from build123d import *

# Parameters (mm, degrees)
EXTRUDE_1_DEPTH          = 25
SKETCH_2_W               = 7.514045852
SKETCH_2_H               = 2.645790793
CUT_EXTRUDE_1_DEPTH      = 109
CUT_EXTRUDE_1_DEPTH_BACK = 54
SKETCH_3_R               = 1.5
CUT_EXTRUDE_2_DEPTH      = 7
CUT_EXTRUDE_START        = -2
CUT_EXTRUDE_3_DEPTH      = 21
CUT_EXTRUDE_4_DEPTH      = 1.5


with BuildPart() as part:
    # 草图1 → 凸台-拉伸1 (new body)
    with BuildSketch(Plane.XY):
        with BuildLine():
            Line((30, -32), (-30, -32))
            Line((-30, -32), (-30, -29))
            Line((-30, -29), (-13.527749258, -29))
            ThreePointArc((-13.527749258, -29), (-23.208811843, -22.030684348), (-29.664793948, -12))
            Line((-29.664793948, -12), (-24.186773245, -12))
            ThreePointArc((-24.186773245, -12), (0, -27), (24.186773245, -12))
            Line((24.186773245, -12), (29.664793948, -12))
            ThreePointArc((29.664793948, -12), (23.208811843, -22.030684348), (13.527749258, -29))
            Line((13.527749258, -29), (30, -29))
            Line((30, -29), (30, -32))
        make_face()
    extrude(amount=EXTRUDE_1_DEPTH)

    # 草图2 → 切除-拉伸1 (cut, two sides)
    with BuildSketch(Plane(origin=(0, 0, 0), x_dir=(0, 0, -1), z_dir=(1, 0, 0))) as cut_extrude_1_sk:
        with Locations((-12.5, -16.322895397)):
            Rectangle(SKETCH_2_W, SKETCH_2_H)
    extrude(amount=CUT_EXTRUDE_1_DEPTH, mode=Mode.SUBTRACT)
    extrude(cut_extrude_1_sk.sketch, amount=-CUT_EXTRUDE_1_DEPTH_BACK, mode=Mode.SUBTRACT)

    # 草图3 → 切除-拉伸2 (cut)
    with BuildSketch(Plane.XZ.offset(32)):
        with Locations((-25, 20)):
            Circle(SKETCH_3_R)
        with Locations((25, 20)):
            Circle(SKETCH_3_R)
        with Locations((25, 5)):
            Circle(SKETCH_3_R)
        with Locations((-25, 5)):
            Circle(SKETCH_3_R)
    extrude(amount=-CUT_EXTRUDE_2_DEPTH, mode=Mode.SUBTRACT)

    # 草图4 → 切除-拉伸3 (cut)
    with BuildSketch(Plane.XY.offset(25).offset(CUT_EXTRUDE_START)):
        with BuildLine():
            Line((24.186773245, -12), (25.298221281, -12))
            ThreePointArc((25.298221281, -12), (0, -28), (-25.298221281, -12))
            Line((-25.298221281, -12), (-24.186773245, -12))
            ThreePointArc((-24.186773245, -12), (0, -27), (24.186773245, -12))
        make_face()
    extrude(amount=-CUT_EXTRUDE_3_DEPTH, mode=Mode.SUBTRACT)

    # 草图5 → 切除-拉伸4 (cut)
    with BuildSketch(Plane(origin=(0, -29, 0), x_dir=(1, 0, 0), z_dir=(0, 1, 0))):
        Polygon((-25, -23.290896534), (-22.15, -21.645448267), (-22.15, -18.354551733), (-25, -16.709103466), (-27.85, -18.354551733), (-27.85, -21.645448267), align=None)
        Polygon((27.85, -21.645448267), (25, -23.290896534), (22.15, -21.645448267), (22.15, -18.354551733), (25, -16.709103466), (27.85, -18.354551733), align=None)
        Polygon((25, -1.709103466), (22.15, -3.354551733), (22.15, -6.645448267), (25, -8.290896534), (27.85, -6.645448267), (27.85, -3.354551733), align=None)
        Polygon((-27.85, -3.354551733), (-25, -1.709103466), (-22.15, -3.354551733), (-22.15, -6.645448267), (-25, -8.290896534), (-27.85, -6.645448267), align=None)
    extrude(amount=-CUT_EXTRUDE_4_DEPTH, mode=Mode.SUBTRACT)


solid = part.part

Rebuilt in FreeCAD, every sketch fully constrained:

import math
import FreeCAD as App
import Part
import Sketcher
Q = App.Units.Quantity

doc = App.newDocument("Part")
body = doc.addObject("PartDesign::Body", "Body")

sketch1 = body.newObject("Sketcher::SketchObject", "Sketch")
sketch1.AttachmentSupport = (doc.getObject("XY_Plane"), [""])
sketch1.MapMode = "FlatFace"
sketch1.addGeometry([
    Part.LineSegment(App.Vector(-30, -32, 0), App.Vector(30, -32, 0)),
    Part.LineSegment(App.Vector(30, -32, 0), App.Vector(30, -29, 0)),
    Part.LineSegment(App.Vector(30, -29, 0), App.Vector(13.5, -29, 0)),
    Part.ArcOfCircle(Part.Circle(App.Vector(0, 0, 0), App.Vector(0, 0, 1), 32), math.radians(-65), math.radians(-22)),
    Part.LineSegment(App.Vector(29.7, -12, 0), App.Vector(24.2, -12, 0)),
    Part.ArcOfCircle(Part.Circle(App.Vector(0, 0, 0), App.Vector(0, 0, 1), 27), math.radians(-154), math.radians(-26)),
    Part.LineSegment(App.Vector(-24.2, -12, 0), App.Vector(-29.7, -12, 0)),
    Part.ArcOfCircle(Part.Circle(App.Vector(0, 0, 0), App.Vector(0, 0, 1), 32), math.radians(-158), math.radians(-115)),
    Part.LineSegment(App.Vector(-13.5, -29, 0), App.Vector(-30, -29, 0)),
    Part.LineSegment(App.Vector(-30, -29, 0), App.Vector(-30, -32, 0)),
], False)
sketch1.addConstraint([
    Sketcher.Constraint("Coincident", 0, 2, 1, 1),
    Sketcher.Constraint("Coincident", 1, 2, 2, 1),
    Sketcher.Constraint("Coincident", 2, 2, 3, 1),
    Sketcher.Constraint("Coincident", 3, 2, 4, 1),
    Sketcher.Constraint("Coincident", 4, 2, 5, 2),
    Sketcher.Constraint("Coincident", 5, 1, 6, 1),
    Sketcher.Constraint("Coincident", 6, 2, 7, 1),
    Sketcher.Constraint("Coincident", 7, 2, 8, 1),
    Sketcher.Constraint("Coincident", 8, 2, 9, 1),
    Sketcher.Constraint("Coincident", 9, 2, 0, 1),
    Sketcher.Constraint("Horizontal", 0),
    Sketcher.Constraint("Vertical", 1),
    Sketcher.Constraint("Horizontal", 2),
    Sketcher.Constraint("Horizontal", 4),
    Sketcher.Constraint("Horizontal", 6),
    Sketcher.Constraint("Horizontal", 8),
    Sketcher.Constraint("Vertical", 9),
    Sketcher.Constraint("Coincident", 3, 3, -1, 1),
    Sketcher.Constraint("Coincident", 5, 3, -1, 1),
    Sketcher.Constraint("Coincident", 7, 3, -1, 1),
    Sketcher.Constraint("Equal", 3, 7),
    Sketcher.Constraint("Symmetric", 1, 2, 8, 2, -2),
    Sketcher.Constraint("Horizontal", 4, 2, 5, 1),
    Sketcher.Constraint("Radius", 3, Q("32 mm")),
    Sketcher.Constraint("Radius", 5, Q("27 mm")),
    Sketcher.Constraint("DistanceX", 0, 1, 0, 2, Q("60 mm")),
    Sketcher.Constraint("DistanceY", 1, 1, 1, 2, Q("3 mm")),
    Sketcher.Constraint("DistanceY", 0, 2, -1, 1, Q("32 mm")),
    Sketcher.Constraint("DistanceY", 3, 2, -1, 1, Q("12 mm")),
])
pad1 = body.newObject("PartDesign::Pad", "Pad")
pad1.Profile = sketch1
pad1.Length = 25

sketch2 = body.newObject("Sketcher::SketchObject", "Sketch001")
sketch2.AttachmentSupport = (doc.getObject("YZ_Plane"), [""])
sketch2.MapMode = "FlatFace"
sketch2.addGeometry([
    Part.LineSegment(App.Vector(-15, 16.3, 0), App.Vector(-17.6, 16.3, 0)),
    Part.LineSegment(App.Vector(-17.6, 16.3, 0), App.Vector(-17.6, 8.7, 0)),
    Part.LineSegment(App.Vector(-17.6, 8.7, 0), App.Vector(-15, 8.7, 0)),
    Part.LineSegment(App.Vector(-15, 8.7, 0), App.Vector(-15, 16.3, 0)),
], False)
sketch2.addConstraint([
    Sketcher.Constraint("Coincident", 0, 2, 1, 1),
    Sketcher.Constraint("Coincident", 1, 2, 2, 1),
    Sketcher.Constraint("Coincident", 2, 2, 3, 1),
    Sketcher.Constraint("Coincident", 3, 2, 0, 1),
    Sketcher.Constraint("Horizontal", 0),
    Sketcher.Constraint("Vertical", 1),
    Sketcher.Constraint("Horizontal", 2),
    Sketcher.Constraint("Vertical", 3),
    Sketcher.Constraint("DistanceX", 2, 2, -1, 1, Q("15 mm")),
    Sketcher.Constraint("DistanceX", 0, 2, 0, 1, Q("2.645791 mm")),
    Sketcher.Constraint("DistanceY", 1, 2, 1, 1, Q("7.514046 mm")),
    Sketcher.Constraint("DistanceY", -1, 1, 0, 2, Q("16.257023 mm")),
])
pocket1 = body.newObject("PartDesign::Pocket", "Pocket")
pocket1.Profile = sketch2
pocket1.Type = "ThroughAll"
pocket1.Midplane = True

sketch3 = body.newObject("Sketcher::SketchObject", "Sketch002")
sketch3.AttachmentSupport = (doc.getObject("XZ_Plane"), [""])
sketch3.MapMode = "FlatFace"
sketch3.AttachmentOffset = App.Placement(App.Vector(0, 0, 32), App.Rotation())
sketch3.addGeometry([
    Part.Circle(App.Vector(-25, 20, 0), App.Vector(0, 0, 1), 1.5),
    Part.Circle(App.Vector(25, 20, 0), App.Vector(0, 0, 1), 1.5),
    Part.Circle(App.Vector(25, 5, 0), App.Vector(0, 0, 1), 1.5),
    Part.Circle(App.Vector(-25, 5, 0), App.Vector(0, 0, 1), 1.5),
], False)
sketch3.addConstraint([
    Sketcher.Constraint("Equal", 0, 1),
    Sketcher.Constraint("Equal", 1, 2),
    Sketcher.Constraint("Equal", 2, 3),
    Sketcher.Constraint("Symmetric", 0, 3, 1, 3, -2),
    Sketcher.Constraint("Symmetric", 2, 3, 3, 3, -2),
    Sketcher.Constraint("Vertical", 1, 3, 2, 3),
    Sketcher.Constraint("Diameter", 0, Q("3 mm")),
    Sketcher.Constraint("DistanceX", 0, 3, -1, 1, Q("25 mm")),
    Sketcher.Constraint("DistanceY", -1, 1, 0, 3, Q("20 mm")),
    Sketcher.Constraint("DistanceY", -1, 1, 2, 3, Q("5 mm")),
])
pocket2 = body.newObject("PartDesign::Pocket", "Pocket001")
pocket2.Profile = sketch3
pocket2.Length = 7

sketch4 = body.newObject("Sketcher::SketchObject", "Sketch003")
sketch4.AttachmentSupport = (doc.getObject("XY_Plane"), [""])
sketch4.MapMode = "FlatFace"
sketch4.AttachmentOffset = App.Placement(App.Vector(0, 0, 23), App.Rotation())
sketch4.addGeometry([
    Part.LineSegment(App.Vector(25.3, -12, 0), App.Vector(24.2, -12, 0)),
    Part.ArcOfCircle(Part.Circle(App.Vector(0, 0, 0), App.Vector(0, 0, 1), 27), math.radians(-154), math.radians(-26)),
    Part.LineSegment(App.Vector(-24.2, -12, 0), App.Vector(-25.3, -12, 0)),
    Part.ArcOfCircle(Part.Circle(App.Vector(0, 0, 0), App.Vector(0, 0, 1), 28), math.radians(-155), math.radians(-25)),
], False)
sketch4.addConstraint([
    Sketcher.Constraint("Coincident", 0, 2, 1, 2),
    Sketcher.Constraint("Coincident", 1, 1, 2, 1),
    Sketcher.Constraint("Coincident", 2, 2, 3, 1),
    Sketcher.Constraint("Coincident", 3, 2, 0, 1),
    Sketcher.Constraint("Horizontal", 0),
    Sketcher.Constraint("Horizontal", 2),
    Sketcher.Constraint("Coincident", 1, 3, -1, 1),
    Sketcher.Constraint("Coincident", 3, 3, -1, 1),
    Sketcher.Constraint("Horizontal", 0, 2, 1, 1),
    Sketcher.Constraint("Radius", 1, Q("27 mm")),
    Sketcher.Constraint("Radius", 3, Q("28 mm")),
    Sketcher.Constraint("DistanceY", 0, 2, -1, 1, Q("12 mm")),
])
pocket3 = body.newObject("PartDesign::Pocket", "Pocket002")
pocket3.Profile = sketch4
pocket3.Length = 21

sketch5 = body.newObject("Sketcher::SketchObject", "Sketch004")
sketch5.AttachmentSupport = (doc.getObject("XZ_Plane"), [""])
sketch5.MapMode = "FlatFace"
sketch5.AttachmentOffset = App.Placement(App.Vector(0, 0, 29), App.Rotation())
sketch5.addGeometry([
    Part.LineSegment(App.Vector(-25, 23.3, 0), App.Vector(-22.1, 21.6, 0)),
    Part.LineSegment(App.Vector(-22.1, 21.6, 0), App.Vector(-22.1, 18.4, 0)),
    Part.LineSegment(App.Vector(-22.1, 18.4, 0), App.Vector(-25, 16.7, 0)),
    Part.LineSegment(App.Vector(-25, 16.7, 0), App.Vector(-27.9, 18.4, 0)),
    Part.LineSegment(App.Vector(-27.9, 18.4, 0), App.Vector(-27.9, 21.6, 0)),
    Part.LineSegment(App.Vector(-27.9, 21.6, 0), App.Vector(-25, 23.3, 0)),
    Part.LineSegment(App.Vector(25, 23.3, 0), App.Vector(27.9, 21.6, 0)),
    Part.LineSegment(App.Vector(27.9, 21.6, 0), App.Vector(27.9, 18.4, 0)),
    Part.LineSegment(App.Vector(27.9, 18.4, 0), App.Vector(25, 16.7, 0)),
    Part.LineSegment(App.Vector(25, 16.7, 0), App.Vector(22.1, 18.4, 0)),
    Part.LineSegment(App.Vector(22.1, 18.4, 0), App.Vector(22.1, 21.6, 0)),
    Part.LineSegment(App.Vector(22.1, 21.6, 0), App.Vector(25, 23.3, 0)),
    Part.LineSegment(App.Vector(25, 1.7, 0), App.Vector(22.1, 3.4, 0)),
    Part.LineSegment(App.Vector(22.1, 3.4, 0), App.Vector(22.1, 6.6, 0)),
    Part.LineSegment(App.Vector(22.1, 6.6, 0), App.Vector(25, 8.3, 0)),
    Part.LineSegment(App.Vector(25, 8.3, 0), App.Vector(27.9, 6.6, 0)),
    Part.LineSegment(App.Vector(27.9, 6.6, 0), App.Vector(27.9, 3.4, 0)),
    Part.LineSegment(App.Vector(27.9, 3.4, 0), App.Vector(25, 1.7, 0)),
    Part.LineSegment(App.Vector(-25, 1.7, 0), App.Vector(-27.9, 3.4, 0)),
    Part.LineSegment(App.Vector(-27.9, 3.4, 0), App.Vector(-27.9, 6.6, 0)),
    Part.LineSegment(App.Vector(-27.9, 6.6, 0), App.Vector(-25, 8.3, 0)),
    Part.LineSegment(App.Vector(-25, 8.3, 0), App.Vector(-22.1, 6.6, 0)),
    Part.LineSegment(App.Vector(-22.1, 6.6, 0), App.Vector(-22.1, 3.4, 0)),
    Part.LineSegment(App.Vector(-22.1, 3.4, 0), App.Vector(-25, 1.7, 0)),
], False)
sketch5.addConstraint([
    Sketcher.Constraint("Coincident", 0, 2, 1, 1),
    Sketcher.Constraint("Coincident", 1, 2, 2, 1),
    Sketcher.Constraint("Coincident", 2, 2, 3, 1),
    Sketcher.Constraint("Coincident", 3, 2, 4, 1),
    Sketcher.Constraint("Coincident", 4, 2, 5, 1),
    Sketcher.Constraint("Coincident", 5, 2, 0, 1),
    Sketcher.Constraint("Coincident", 6, 2, 7, 1),
    Sketcher.Constraint("Coincident", 7, 2, 8, 1),
    Sketcher.Constraint("Coincident", 8, 2, 9, 1),
    Sketcher.Constraint("Coincident", 9, 2, 10, 1),
    Sketcher.Constraint("Coincident", 10, 2, 11, 1),
    Sketcher.Constraint("Coincident", 11, 2, 6, 1),
    Sketcher.Constraint("Coincident", 12, 2, 13, 1),
    Sketcher.Constraint("Coincident", 13, 2, 14, 1),
    Sketcher.Constraint("Coincident", 14, 2, 15, 1),
    Sketcher.Constraint("Coincident", 15, 2, 16, 1),
    Sketcher.Constraint("Coincident", 16, 2, 17, 1),
    Sketcher.Constraint("Coincident", 17, 2, 12, 1),
    Sketcher.Constraint("Coincident", 18, 2, 19, 1),
    Sketcher.Constraint("Coincident", 19, 2, 20, 1),
    Sketcher.Constraint("Coincident", 20, 2, 21, 1),
    Sketcher.Constraint("Coincident", 21, 2, 22, 1),
    Sketcher.Constraint("Coincident", 22, 2, 23, 1),
    Sketcher.Constraint("Coincident", 23, 2, 18, 1),
    Sketcher.Constraint("Vertical", 1),
    Sketcher.Constraint("Vertical", 4),
    Sketcher.Constraint("Vertical", 7),
    Sketcher.Constraint("Vertical", 10),
    Sketcher.Constraint("Vertical", 13),
    Sketcher.Constraint("Vertical", 16),
    Sketcher.Constraint("Vertical", 19),
    Sketcher.Constraint("Vertical", 22),
    Sketcher.Constraint("Symmetric", 4, 2, 6, 2, -2),
    Sketcher.Constraint("Symmetric", 2, 2, 8, 2, -2),
    Sketcher.Constraint("Symmetric", 1, 2, 9, 2, -2),
    Sketcher.Constraint("Symmetric", 5, 2, 11, 2, -2),
    Sketcher.Constraint("Symmetric", 16, 2, 18, 2, -2),
    Sketcher.Constraint("Symmetric", 14, 2, 20, 2, -2),
    Sketcher.Constraint("Symmetric", 13, 2, 21, 2, -2),
    Sketcher.Constraint("Symmetric", 17, 2, 23, 2, -2),
    Sketcher.Constraint("Parallel", 0, 3),
    Sketcher.Constraint("Parallel", 2, 5),
    Sketcher.Constraint("Parallel", 3, 6),
    Sketcher.Constraint("Parallel", 5, 8),
    Sketcher.Constraint("Parallel", 8, 11),
    Sketcher.Constraint("Parallel", 9, 12),
    Sketcher.Constraint("Parallel", 11, 14),
    Sketcher.Constraint("Parallel", 12, 15),
    Sketcher.Constraint("Parallel", 14, 17),
    Sketcher.Constraint("Parallel", 17, 20),
    Sketcher.Constraint("Parallel", 20, 23),
    Sketcher.Constraint("Horizontal", 1, 2, 3, 2),
    Sketcher.Constraint("Horizontal", 0, 2, 4, 2),
    Sketcher.Constraint("Horizontal", 13, 2, 15, 2),
    Sketcher.Constraint("Horizontal", 12, 2, 16, 2),
    Sketcher.Constraint("Vertical", 10, 2, 12, 2),
    Sketcher.Constraint("Vertical", 11, 2, 14, 2),
    Sketcher.Constraint("Equal", 10, 13),
    Sketcher.Constraint("Angle", 0, Q("-30 deg")),
    Sketcher.Constraint("DistanceX", 2, 2, -1, 1, Q("25 mm")),
    Sketcher.Constraint("DistanceY", 12, 2, 9, 2, Q("15 mm")),
    Sketcher.Constraint("DistanceX", 3, 2, 1, 2, Q("5.7 mm")),
    Sketcher.Constraint("DistanceY", 1, 2, 1, 1, Q("3.290897 mm")),
    Sketcher.Constraint("DistanceY", -1, 1, 0, 2, Q("21.645448 mm")),
])
pocket4 = body.newObject("PartDesign::Pocket", "Pocket003")
pocket4.Profile = sketch5
pocket4.Length = 1.5
pocket4.Reversed = True

doc.recompute()
